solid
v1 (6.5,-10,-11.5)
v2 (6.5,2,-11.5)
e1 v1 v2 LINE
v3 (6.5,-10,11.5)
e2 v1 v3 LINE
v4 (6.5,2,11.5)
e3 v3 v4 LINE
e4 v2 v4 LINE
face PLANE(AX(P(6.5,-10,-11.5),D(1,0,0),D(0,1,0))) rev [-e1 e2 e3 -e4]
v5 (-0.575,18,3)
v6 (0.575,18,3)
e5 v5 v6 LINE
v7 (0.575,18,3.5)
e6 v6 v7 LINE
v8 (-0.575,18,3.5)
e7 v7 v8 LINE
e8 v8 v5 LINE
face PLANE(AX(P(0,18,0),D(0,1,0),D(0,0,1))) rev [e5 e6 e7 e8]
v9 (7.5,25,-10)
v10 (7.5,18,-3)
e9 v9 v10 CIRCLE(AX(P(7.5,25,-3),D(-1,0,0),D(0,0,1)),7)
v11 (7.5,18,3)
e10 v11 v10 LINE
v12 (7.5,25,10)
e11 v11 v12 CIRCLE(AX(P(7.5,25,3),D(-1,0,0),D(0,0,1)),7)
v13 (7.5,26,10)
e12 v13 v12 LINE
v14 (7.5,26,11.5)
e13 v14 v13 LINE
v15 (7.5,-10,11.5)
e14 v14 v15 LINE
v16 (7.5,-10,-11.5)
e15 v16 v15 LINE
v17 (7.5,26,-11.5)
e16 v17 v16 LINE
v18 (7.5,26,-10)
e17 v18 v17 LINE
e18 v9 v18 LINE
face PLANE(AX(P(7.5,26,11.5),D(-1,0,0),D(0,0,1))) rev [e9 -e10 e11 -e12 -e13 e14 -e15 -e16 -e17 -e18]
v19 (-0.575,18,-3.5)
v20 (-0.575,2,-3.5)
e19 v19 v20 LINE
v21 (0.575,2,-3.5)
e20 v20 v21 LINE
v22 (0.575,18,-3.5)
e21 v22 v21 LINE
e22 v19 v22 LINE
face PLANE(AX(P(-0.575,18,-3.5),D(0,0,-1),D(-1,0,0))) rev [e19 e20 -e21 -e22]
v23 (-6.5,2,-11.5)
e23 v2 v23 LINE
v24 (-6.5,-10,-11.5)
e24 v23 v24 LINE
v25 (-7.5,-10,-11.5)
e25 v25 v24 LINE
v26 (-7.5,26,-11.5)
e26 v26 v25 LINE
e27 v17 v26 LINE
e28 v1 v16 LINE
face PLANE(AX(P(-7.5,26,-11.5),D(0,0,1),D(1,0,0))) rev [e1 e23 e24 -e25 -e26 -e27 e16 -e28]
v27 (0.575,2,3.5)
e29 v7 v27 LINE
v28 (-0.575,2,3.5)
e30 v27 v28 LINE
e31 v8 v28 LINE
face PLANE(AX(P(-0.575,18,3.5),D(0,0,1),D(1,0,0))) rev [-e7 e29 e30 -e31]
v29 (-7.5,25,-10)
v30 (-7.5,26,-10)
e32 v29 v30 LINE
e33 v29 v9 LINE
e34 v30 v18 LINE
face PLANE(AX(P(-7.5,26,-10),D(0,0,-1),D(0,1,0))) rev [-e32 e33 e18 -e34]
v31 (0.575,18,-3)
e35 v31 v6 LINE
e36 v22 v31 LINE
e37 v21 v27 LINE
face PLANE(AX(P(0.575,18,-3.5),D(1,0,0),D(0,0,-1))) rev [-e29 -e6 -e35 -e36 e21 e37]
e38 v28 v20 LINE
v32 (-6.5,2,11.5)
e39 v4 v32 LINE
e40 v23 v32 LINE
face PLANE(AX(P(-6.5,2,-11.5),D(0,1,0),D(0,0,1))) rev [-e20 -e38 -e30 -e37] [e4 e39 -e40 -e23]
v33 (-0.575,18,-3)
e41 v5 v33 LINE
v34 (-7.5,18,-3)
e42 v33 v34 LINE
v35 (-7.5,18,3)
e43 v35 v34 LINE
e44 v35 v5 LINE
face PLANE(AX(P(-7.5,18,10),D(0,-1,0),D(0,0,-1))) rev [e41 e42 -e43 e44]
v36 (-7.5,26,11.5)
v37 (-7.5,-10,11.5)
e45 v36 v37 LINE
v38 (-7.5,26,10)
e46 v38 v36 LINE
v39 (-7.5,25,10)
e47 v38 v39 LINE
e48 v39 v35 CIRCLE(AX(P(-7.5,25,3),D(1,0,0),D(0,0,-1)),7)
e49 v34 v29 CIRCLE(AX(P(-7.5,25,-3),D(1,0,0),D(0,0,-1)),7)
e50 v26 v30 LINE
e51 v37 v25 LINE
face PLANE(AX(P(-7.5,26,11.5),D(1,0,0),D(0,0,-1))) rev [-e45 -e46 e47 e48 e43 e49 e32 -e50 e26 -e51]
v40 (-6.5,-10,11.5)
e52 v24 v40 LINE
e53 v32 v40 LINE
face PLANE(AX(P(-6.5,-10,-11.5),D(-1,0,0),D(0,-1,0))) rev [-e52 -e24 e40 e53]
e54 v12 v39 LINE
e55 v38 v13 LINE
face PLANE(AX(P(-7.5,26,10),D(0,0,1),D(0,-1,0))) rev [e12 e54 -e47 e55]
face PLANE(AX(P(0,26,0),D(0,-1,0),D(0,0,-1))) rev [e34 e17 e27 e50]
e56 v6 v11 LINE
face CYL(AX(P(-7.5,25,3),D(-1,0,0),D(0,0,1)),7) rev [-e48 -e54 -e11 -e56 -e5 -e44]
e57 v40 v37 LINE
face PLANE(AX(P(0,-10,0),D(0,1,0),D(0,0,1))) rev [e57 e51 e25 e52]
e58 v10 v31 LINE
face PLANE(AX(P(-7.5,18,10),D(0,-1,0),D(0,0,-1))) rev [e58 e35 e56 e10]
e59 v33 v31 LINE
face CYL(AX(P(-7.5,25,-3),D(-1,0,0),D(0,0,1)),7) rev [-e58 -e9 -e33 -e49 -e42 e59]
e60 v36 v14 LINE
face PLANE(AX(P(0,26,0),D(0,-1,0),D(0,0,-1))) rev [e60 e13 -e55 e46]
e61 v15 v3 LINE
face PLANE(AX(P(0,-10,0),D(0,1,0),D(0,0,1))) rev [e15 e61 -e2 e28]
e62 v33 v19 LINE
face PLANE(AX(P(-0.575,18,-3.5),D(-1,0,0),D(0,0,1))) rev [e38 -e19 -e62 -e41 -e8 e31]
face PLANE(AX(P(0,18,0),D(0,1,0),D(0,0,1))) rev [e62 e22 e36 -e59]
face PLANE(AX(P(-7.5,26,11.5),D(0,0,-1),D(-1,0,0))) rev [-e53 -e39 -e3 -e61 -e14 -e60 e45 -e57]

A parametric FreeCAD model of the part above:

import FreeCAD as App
import Part
import Sketcher


def edges_at(feature, points):
    """Names of the edges that pass closest to the given points."""
    edges = feature.Shape.Edges
    near = lambda p: min(range(len(edges)), key=lambda i: edges[i].distToShape(Part.Vertex(*p))[0])
    return sorted({f"Edge{near(p) + 1}" for p in points})

doc = App.newDocument("Part")
body = doc.addObject("PartDesign::Body", "Body")

sketch1 = doc.addObject("Sketcher::SketchObject", "Sketch")
body.addObject(sketch1)
sketch1.AttachmentSupport = (doc.XZ_Plane, [""])
sketch1.MapMode = "FlatFace"
sketch1.addGeometry([
    Part.LineSegment(App.Vector(-7.5, -11.5, 0), App.Vector(-7.5, 11.5, 0)),
    Part.LineSegment(App.Vector(-7.5, 11.5, 0), App.Vector(7.5, 11.5, 0)),
    Part.LineSegment(App.Vector(7.5, 11.5, 0), App.Vector(7.5, -11.5, 0)),
    Part.LineSegment(App.Vector(7.5, -11.5, 0), App.Vector(-7.5, -11.5, 0)),
], False)
sketch1.addConstraint([
    Sketcher.Constraint("Coincident", 0, 2, 1, 1),
    Sketcher.Constraint("Coincident", 1, 2, 2, 1),
    Sketcher.Constraint("Coincident", 2, 2, 3, 1),
    Sketcher.Constraint("Coincident", 3, 2, 0, 1),
    Sketcher.Constraint("Vertical", 0),
    Sketcher.Constraint("Horizontal", 1),
    Sketcher.Constraint("Vertical", 2),
    Sketcher.Constraint("Horizontal", 3),
    Sketcher.Constraint("Symmetric", 0, 2, 2, 2, -1, 1),
    Sketcher.Constraint("DistanceX", 1, 1, 1, 2, 15.0),
    Sketcher.Constraint("DistanceY", 0, 1, 0, 2, 23.0),
])
pad1 = doc.addObject("PartDesign::Pad", "Pad")
body.addObject(pad1)
pad1.Profile = sketch1
pad1.Length = 26
pad1.Reversed = True

sketch2 = doc.addObject("Sketcher::SketchObject", "Sketch001")
body.addObject(sketch2)
sketch2.AttachmentSupport = (doc.YZ_Plane, [""])
sketch2.MapMode = "FlatFace"
sketch2.AttachmentOffset = App.Placement(App.Vector(0, 0, 7.5), App.Rotation())
sketch2.addGeometry([
    Part.LineSegment(App.Vector(26, 10, 0), App.Vector(18, 10, 0)),
    Part.LineSegment(App.Vector(18, 10, 0), App.Vector(18, -10, 0)),
    Part.LineSegment(App.Vector(18, -10, 0), App.Vector(26, -10, 0)),
    Part.LineSegment(App.Vector(26, -10, 0), App.Vector(26, 10, 0)),
], False)
sketch2.addConstraint([
    Sketcher.Constraint("Coincident", 0, 2, 1, 1),
    Sketcher.Constraint("Coincident", 1, 2, 2, 1),
    Sketcher.Constraint("Coincident", 2, 2, 3, 1),
    Sketcher.Constraint("Coincident", 3, 2, 0, 1),
    Sketcher.Constraint("Horizontal", 0),
    Sketcher.Constraint("Vertical", 1),
    Sketcher.Constraint("Horizontal", 2),
    Sketcher.Constraint("Vertical", 3),
    Sketcher.Constraint("DistanceX", 0, 2, 0, 1, 8.0),
    Sketcher.Constraint("DistanceY", 1, 2, 1, 1, 20.0),
    Sketcher.Constraint("DistanceX", -1, 1, 0, 2, 18.0),
    Sketcher.Constraint("DistanceY", -1, 1, 0, 2, 10.0),
])
pocket1 = doc.addObject("PartDesign::Pocket", "Pocket")
body.addObject(pocket1)
pocket1.Profile = sketch2
pocket1.Type = "ThroughAll"
doc.recompute()

fillet = doc.addObject("PartDesign::Fillet", "Fillet")
body.addObject(fillet)
fillet.Base = (pocket1, edges_at(pocket1, [(0, 18, 10), (0, 18, -10)]))
fillet.Radius = 7

sketch3 = doc.addObject("Sketcher::SketchObject", "Sketch002")
body.addObject(sketch3)
sketch3.AttachmentSupport = (doc.XZ_Plane, [""])
sketch3.MapMode = "FlatFace"
sketch3.addGeometry([
    Part.LineSegment(App.Vector(-7.5, 11.5, 0), App.Vector(-7.5, -11.5, 0)),
    Part.LineSegment(App.Vector(-7.5, -11.5, 0), App.Vector(7.5, -11.5, 0)),
    Part.LineSegment(App.Vector(7.5, -11.5, 0), App.Vector(7.5, 11.5, 0)),
    Part.LineSegment(App.Vector(7.5, 11.5, 0), App.Vector(-7.5, 11.5, 0)),
], False)
sketch3.addConstraint([
    Sketcher.Constraint("Coincident", 0, 2, 1, 1),
    Sketcher.Constraint("Coincident", 1, 2, 2, 1),
    Sketcher.Constraint("Coincident", 2, 2, 3, 1),
    Sketcher.Constraint("Coincident", 3, 2, 0, 1),
    Sketcher.Constraint("Vertical", 0),
    Sketcher.Constraint("Horizontal", 1),
    Sketcher.Constraint("Vertical", 2),
    Sketcher.Constraint("Horizontal", 3),
    Sketcher.Constraint("Symmetric", 0, 2, 2, 2, -1, 1),
    Sketcher.Constraint("DistanceX", 1, 1, 1, 2, 15.0),
    Sketcher.Constraint("DistanceY", 0, 2, 0, 1, 23.0),
])
pad2 = doc.addObject("PartDesign::Pad", "Pad001")
body.addObject(pad2)
pad2.Profile = sketch3
pad2.Length = 10

sketch4 = doc.addObject("Sketcher::SketchObject", "Sketch003")
body.addObject(sketch4)
sketch4.AttachmentSupport = (doc.XY_Plane, [""])
sketch4.MapMode = "FlatFace"
sketch4.AttachmentOffset = App.Placement(App.Vector(0, 0, 11.5), App.Rotation())
sketch4.addGeometry([
    Part.LineSegment(App.Vector(-6.5, 2, 0), App.Vector(-6.5, -10, 0)),
    Part.LineSegment(App.Vector(-6.5, -10, 0), App.Vector(6.5, -10, 0)),
    Part.LineSegment(App.Vector(6.5, -10, 0), App.Vector(6.5, 2, 0)),
    Part.LineSegment(App.Vector(6.5, 2, 0), App.Vector(-6.5, 2, 0)),
], False)
sketch4.addConstraint([
    Sketcher.Constraint("Coincident", 0, 2, 1, 1),
    Sketcher.Constraint("Coincident", 1, 2, 2, 1),
    Sketcher.Constraint("Coincident", 2, 2, 3, 1),
    Sketcher.Constraint("Coincident", 3, 2, 0, 1),
    Sketcher.Constraint("Vertical", 0),
    Sketcher.Constraint("Horizontal", 1),
    Sketcher.Constraint("Vertical", 2),
    Sketcher.Constraint("Horizontal", 3),
    Sketcher.Constraint("DistanceX", 1, 1, 1, 2, 13.0),
    Sketcher.Constraint("DistanceY", 0, 2, 0, 1, 12.0),
    Sketcher.Constraint("DistanceY", 0, 2, -1, 1, 10.0),
    Sketcher.Constraint("DistanceX", 0, 2, -1, 1, 6.5),
])
pocket2 = doc.addObject("PartDesign::Pocket", "Pocket001")
body.addObject(pocket2)
pocket2.Profile = sketch4
pocket2.Type = "ThroughAll"

sketch5 = doc.addObject("Sketcher::SketchObject", "Sketch004")
body.addObject(sketch5)
sketch5.AttachmentSupport = (doc.XZ_Plane, [""])
sketch5.MapMode = "FlatFace"
sketch5.AttachmentOffset = App.Placement(App.Vector(0, 0, -2), App.Rotation())
sketch5.addGeometry([
    Part.LineSegment(App.Vector(-0.575, 3.5, 0), App.Vector(-0.575, -3.5, 0)),
    Part.LineSegment(App.Vector(-0.575, -3.5, 0), App.Vector(0.575, -3.5, 0)),
    Part.LineSegment(App.Vector(0.575, -3.5, 0), App.Vector(0.575, 3.5, 0)),
    Part.LineSegment(App.Vector(0.575, 3.5, 0), App.Vector(-0.575, 3.5, 0)),
], False)
sketch5.addConstraint([
    Sketcher.Constraint("Coincident", 0, 2, 1, 1),
    Sketcher.Constraint("Coincident", 1, 2, 2, 1),
    Sketcher.Constraint("Coincident", 2, 2, 3, 1),
    Sketcher.Constraint("Coincident", 3, 2, 0, 1),
    Sketcher.Constraint("Vertical", 0),
    Sketcher.Constraint("Horizontal", 1),
    Sketcher.Constraint("Vertical", 2),
    Sketcher.Constraint("Horizontal", 3),
    Sketcher.Constraint("Symmetric", 0, 2, 2, 2, -1, 1),
    Sketcher.Constraint("DistanceY", 0, 2, 0, 1, 7.0),
    Sketcher.Constraint("DistanceX", 1, 1, 1, 2, 1.15),
])
pocket3 = doc.addObject("PartDesign::Pocket", "Pocket002")
body.addObject(pocket3)
pocket3.Profile = sketch5
pocket3.Length = 16

doc.recompute()
